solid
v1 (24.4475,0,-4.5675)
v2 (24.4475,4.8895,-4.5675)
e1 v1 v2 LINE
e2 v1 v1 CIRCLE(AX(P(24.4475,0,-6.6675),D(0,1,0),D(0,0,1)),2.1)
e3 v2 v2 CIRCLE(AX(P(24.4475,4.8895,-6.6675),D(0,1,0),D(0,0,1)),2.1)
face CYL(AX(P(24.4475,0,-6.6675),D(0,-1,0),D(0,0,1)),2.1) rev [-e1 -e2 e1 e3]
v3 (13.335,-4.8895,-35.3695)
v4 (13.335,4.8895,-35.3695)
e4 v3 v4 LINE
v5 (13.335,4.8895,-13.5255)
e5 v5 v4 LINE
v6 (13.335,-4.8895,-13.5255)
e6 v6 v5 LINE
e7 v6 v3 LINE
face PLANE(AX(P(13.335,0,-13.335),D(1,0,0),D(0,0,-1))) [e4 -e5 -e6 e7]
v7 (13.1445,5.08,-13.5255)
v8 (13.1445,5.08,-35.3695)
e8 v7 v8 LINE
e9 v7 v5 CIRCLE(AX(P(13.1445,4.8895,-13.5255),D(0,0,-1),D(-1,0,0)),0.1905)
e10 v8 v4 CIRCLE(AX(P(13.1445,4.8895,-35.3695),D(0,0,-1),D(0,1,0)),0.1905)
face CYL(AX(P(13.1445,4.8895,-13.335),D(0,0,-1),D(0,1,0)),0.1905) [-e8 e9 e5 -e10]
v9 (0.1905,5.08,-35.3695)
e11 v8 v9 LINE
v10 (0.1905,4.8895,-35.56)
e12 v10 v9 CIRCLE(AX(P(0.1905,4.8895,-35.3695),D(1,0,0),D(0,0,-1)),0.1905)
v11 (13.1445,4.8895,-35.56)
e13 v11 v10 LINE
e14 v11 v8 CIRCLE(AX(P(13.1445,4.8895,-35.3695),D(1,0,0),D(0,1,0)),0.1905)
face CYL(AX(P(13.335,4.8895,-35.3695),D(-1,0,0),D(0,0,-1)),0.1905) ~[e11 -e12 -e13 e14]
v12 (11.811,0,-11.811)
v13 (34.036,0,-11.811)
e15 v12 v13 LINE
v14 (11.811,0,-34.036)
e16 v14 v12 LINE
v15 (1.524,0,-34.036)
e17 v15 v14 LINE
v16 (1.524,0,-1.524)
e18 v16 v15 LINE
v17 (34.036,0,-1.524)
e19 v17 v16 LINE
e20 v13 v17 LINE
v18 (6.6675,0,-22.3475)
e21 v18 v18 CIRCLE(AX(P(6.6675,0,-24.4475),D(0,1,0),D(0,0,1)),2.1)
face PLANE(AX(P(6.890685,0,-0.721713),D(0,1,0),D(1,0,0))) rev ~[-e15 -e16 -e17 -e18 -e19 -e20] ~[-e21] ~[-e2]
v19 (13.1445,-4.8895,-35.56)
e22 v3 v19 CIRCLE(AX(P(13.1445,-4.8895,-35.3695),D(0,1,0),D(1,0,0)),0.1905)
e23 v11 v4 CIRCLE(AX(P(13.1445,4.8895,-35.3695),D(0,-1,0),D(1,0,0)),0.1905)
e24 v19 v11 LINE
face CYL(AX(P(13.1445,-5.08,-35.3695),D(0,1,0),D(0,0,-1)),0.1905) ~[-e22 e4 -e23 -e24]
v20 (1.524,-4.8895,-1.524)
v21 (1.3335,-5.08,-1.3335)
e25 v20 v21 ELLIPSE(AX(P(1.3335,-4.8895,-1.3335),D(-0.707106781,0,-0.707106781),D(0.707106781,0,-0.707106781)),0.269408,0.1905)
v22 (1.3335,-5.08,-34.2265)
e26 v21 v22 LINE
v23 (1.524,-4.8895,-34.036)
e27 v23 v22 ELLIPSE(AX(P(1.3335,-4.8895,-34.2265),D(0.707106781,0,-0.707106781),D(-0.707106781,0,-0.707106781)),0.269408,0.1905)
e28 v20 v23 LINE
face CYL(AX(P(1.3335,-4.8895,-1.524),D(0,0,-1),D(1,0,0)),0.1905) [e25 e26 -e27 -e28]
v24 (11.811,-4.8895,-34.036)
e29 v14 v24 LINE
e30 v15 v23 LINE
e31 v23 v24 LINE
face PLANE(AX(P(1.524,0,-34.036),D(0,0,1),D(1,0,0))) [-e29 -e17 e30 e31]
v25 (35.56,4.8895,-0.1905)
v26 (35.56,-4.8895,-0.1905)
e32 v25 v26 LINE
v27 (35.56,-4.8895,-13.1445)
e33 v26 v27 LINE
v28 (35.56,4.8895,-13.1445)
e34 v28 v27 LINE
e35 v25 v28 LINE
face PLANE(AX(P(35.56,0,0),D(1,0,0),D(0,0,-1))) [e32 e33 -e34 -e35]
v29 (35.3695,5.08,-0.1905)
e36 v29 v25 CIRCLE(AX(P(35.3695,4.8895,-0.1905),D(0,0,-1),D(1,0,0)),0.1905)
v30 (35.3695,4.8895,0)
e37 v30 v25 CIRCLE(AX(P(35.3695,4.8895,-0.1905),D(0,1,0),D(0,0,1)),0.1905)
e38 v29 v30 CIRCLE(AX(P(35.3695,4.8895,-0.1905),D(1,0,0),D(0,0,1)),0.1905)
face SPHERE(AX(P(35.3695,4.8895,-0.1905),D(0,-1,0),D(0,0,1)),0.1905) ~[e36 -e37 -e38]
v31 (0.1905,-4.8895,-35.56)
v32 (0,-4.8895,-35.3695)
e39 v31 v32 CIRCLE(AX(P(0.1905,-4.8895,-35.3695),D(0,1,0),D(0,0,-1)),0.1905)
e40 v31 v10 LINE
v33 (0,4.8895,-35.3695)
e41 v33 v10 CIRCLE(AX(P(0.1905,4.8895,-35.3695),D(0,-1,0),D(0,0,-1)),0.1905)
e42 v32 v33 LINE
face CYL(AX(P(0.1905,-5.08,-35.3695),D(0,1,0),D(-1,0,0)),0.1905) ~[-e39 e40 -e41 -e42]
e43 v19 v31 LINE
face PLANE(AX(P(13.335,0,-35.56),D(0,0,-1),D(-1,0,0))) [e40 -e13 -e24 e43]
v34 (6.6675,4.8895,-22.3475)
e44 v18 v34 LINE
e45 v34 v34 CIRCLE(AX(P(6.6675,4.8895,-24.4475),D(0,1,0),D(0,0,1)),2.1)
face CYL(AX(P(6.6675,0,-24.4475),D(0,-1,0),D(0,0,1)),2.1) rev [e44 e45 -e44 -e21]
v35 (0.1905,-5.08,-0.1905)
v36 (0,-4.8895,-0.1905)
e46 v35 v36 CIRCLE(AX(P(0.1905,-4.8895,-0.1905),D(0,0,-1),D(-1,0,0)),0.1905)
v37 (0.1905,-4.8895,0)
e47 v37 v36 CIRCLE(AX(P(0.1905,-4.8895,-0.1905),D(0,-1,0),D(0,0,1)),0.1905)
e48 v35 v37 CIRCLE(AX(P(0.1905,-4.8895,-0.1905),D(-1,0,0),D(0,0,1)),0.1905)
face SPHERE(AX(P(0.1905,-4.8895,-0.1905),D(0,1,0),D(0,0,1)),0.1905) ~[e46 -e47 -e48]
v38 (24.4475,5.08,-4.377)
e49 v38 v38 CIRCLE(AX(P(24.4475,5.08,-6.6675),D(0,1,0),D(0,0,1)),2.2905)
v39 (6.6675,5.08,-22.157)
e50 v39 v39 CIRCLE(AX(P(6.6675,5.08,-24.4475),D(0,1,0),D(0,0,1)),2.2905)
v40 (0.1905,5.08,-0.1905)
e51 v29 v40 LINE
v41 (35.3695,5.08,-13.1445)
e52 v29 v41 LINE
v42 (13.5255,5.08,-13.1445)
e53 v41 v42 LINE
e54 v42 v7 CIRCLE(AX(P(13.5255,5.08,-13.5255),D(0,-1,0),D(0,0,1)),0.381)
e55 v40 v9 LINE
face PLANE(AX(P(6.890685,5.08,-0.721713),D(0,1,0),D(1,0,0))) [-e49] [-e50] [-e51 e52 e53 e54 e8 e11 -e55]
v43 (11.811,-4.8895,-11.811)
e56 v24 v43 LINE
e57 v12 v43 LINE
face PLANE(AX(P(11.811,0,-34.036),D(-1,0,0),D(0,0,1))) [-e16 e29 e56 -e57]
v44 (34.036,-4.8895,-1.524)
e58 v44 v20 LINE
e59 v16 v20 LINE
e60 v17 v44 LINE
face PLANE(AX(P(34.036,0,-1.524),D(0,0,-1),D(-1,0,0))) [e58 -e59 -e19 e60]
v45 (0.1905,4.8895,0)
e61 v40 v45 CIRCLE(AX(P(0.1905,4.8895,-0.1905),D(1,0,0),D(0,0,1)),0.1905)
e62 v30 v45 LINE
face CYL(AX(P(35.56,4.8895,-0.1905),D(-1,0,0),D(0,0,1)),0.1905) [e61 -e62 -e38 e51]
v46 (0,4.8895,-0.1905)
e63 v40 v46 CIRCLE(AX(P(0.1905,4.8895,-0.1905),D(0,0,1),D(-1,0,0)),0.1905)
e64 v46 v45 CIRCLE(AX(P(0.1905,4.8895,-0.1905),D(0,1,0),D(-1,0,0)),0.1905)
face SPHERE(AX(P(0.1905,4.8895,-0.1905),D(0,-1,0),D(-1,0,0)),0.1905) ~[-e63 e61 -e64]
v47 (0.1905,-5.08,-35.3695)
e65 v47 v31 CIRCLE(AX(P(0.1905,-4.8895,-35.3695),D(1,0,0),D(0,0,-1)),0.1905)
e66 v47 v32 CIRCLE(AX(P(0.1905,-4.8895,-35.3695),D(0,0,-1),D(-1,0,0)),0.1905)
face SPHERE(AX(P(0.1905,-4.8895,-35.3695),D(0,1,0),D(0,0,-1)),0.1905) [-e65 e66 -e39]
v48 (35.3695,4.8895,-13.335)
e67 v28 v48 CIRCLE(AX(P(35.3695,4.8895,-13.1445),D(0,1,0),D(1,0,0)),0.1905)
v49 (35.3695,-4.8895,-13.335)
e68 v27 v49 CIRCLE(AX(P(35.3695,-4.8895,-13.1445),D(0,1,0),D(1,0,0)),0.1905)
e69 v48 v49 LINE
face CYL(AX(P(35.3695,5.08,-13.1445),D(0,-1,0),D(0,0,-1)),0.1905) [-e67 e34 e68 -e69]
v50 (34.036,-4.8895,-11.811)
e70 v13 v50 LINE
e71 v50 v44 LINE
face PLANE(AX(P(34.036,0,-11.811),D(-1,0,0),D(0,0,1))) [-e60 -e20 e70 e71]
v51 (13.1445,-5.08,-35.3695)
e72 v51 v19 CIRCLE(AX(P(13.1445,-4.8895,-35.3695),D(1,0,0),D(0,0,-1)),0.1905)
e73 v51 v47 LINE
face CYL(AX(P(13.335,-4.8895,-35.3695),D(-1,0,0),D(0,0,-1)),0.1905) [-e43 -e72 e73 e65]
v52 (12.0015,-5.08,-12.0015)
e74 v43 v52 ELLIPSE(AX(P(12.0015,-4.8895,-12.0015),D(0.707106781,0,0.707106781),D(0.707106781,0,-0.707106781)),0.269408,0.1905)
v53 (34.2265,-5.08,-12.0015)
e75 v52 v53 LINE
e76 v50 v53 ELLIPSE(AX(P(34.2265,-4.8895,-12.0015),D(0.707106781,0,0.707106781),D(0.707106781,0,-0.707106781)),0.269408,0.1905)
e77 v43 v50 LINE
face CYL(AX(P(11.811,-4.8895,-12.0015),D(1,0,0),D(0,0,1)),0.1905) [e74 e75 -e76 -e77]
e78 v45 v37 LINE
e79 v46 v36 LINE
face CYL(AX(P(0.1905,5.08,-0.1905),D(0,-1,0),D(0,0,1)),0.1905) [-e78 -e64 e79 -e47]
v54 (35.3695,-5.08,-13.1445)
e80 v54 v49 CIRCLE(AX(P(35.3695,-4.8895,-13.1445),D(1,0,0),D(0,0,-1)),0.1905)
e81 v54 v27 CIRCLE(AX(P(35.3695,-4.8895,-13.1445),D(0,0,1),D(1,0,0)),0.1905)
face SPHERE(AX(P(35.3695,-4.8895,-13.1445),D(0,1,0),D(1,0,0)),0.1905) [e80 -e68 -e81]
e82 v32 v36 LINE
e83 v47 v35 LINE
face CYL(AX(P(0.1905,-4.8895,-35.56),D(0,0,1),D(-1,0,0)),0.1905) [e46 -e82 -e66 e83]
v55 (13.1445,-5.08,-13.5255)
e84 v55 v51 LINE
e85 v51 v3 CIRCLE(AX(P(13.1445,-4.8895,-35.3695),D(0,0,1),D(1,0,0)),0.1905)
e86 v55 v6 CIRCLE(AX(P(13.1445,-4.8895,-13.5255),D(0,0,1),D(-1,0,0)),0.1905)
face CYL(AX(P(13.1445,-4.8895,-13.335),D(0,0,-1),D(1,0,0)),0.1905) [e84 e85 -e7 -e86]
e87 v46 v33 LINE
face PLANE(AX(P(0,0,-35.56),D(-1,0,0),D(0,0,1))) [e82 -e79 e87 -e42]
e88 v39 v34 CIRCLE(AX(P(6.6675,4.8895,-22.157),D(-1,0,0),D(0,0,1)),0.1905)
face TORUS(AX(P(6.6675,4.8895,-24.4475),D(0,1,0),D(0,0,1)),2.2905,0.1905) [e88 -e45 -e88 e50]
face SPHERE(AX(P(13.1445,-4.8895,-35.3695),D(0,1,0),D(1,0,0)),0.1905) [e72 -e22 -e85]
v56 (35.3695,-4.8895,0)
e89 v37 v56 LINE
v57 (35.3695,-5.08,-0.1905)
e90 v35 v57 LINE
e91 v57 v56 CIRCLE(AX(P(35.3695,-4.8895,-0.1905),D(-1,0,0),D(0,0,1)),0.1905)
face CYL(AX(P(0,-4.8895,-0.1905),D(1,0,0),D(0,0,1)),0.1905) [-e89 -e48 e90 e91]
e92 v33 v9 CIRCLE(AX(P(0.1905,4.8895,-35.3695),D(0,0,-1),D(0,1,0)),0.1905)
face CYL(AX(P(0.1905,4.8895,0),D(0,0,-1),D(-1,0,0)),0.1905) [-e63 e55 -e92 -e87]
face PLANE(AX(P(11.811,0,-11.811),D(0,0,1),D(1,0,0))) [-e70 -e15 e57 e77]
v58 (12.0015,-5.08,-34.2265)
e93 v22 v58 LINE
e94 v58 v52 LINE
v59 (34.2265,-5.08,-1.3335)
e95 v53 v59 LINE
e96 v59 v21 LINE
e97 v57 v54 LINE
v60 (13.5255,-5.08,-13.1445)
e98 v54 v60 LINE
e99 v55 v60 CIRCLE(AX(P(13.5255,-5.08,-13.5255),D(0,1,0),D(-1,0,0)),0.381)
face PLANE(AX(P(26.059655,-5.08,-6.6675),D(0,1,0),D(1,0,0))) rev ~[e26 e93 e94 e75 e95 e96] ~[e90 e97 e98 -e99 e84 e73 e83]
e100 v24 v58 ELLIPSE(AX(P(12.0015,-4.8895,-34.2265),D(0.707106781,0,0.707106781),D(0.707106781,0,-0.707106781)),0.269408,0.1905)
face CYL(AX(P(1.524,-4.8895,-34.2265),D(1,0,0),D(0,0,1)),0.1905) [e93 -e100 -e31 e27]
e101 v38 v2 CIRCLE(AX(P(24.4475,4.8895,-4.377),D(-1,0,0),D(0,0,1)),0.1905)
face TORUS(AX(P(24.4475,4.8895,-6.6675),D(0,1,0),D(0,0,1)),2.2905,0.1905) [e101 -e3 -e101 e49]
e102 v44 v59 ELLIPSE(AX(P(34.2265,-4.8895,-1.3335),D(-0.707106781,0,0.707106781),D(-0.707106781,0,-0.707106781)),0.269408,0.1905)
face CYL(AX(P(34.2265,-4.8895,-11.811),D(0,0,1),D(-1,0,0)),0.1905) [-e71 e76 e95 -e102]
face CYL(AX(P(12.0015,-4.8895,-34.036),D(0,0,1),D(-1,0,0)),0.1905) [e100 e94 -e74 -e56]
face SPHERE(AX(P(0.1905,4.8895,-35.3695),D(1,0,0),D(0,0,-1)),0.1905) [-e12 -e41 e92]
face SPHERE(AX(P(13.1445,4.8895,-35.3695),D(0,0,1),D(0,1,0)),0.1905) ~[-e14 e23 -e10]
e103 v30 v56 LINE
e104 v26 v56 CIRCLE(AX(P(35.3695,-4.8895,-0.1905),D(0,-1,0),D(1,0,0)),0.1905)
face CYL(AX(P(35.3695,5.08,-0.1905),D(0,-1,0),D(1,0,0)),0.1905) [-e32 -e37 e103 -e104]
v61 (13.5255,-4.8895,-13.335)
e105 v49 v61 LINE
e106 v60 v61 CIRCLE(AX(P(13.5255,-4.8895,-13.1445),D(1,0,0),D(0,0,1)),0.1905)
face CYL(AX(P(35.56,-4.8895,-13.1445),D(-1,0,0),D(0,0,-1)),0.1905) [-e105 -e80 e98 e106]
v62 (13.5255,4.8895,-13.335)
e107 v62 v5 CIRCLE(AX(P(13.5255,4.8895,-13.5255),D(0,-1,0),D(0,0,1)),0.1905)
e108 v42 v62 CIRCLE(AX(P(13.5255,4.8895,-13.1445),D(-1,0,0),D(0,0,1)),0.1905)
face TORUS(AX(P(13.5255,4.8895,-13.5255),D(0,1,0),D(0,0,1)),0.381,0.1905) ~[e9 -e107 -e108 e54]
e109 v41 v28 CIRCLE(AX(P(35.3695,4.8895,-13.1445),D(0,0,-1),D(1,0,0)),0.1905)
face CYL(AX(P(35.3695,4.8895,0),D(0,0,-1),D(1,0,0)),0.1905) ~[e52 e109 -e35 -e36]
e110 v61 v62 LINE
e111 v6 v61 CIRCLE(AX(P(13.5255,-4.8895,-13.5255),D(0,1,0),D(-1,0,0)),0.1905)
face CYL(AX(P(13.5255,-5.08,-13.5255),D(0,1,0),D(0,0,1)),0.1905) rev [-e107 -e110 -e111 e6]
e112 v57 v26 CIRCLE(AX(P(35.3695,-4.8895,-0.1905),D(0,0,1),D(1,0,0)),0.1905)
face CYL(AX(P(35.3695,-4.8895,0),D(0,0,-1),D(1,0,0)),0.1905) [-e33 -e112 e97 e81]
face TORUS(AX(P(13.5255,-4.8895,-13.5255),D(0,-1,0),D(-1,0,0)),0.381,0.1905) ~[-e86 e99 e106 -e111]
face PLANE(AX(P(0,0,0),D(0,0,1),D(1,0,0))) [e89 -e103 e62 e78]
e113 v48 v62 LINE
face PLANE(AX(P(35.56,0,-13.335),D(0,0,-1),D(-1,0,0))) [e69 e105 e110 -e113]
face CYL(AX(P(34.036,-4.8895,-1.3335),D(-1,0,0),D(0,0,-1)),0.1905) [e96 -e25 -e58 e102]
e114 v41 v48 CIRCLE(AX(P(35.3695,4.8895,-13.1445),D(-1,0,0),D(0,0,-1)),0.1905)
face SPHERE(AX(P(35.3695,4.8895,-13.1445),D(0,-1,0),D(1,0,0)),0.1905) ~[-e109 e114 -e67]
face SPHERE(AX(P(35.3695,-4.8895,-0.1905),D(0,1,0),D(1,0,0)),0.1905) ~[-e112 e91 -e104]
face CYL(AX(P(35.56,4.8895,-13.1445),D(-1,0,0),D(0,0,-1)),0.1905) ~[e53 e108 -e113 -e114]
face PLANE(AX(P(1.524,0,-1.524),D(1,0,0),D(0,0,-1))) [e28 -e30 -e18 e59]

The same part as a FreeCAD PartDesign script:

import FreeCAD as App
import Part
import Sketcher
from FreeCAD import Vector
Q = App.Units.Quantity


def edges_at(feature, points):
    """Names of the edges that pass closest to the given points."""
    edges = feature.Shape.Edges
    near = lambda p: min(range(len(edges)), key=lambda i: edges[i].distToShape(Part.Vertex(*p))[0])
    return sorted({f"Edge{near(p) + 1}" for p in points})

doc = App.newDocument("Part")
params = doc.addObject("Spreadsheet::Sheet", "Params")
for row, (alias, value) in enumerate([
    ("sketch1_width", "1.4 in"),
    ("sketch1_width2", "0.875 in"),
    ("pad1_length", "0.2 in"),
    ("sketch2_width", "1.4 in"),
    ("sketch2_width2", "1.28 in"),
    ("sketch2_width3", "0.875 in"),
    ("pad2_length", "0.2 in"),
    ("fillet_radius", "0.0075 in"),
], start=1):
    params.set(f"A{row}", alias)
    params.set(f"B{row}", "=" + value)
    params.setAlias(f"B{row}", alias)

body = doc.addObject("PartDesign::Body", "Body")

sketch1 = body.newObject("Sketcher::SketchObject", "Sketch")
sketch1.AttachmentSupport = (doc.getObject("XZ_Plane"), [""])
sketch1.MapMode = "FlatFace"
sketch1.addGeometry(Part.LineSegment(Vector(35.56, 0, 0), Vector(35.56, -13.335, 0)), False)
sketch1.addGeometry(Part.LineSegment(Vector(35.56, -13.335, 0), Vector(13.335, -13.335, 0)), False)
sketch1.addGeometry(Part.LineSegment(Vector(13.335, -13.335, 0), Vector(13.335, -35.56, 0)), False)
sketch1.addGeometry(Part.LineSegment(Vector(13.335, -35.56, 0), Vector(0, -35.56, 0)), False)
sketch1.addGeometry(Part.LineSegment(Vector(0, -35.56, 0), Vector(0, 0, 0)), False)
sketch1.addGeometry(Part.LineSegment(Vector(0, 0, 0), Vector(35.56, 0, 0)), False)
sketch1.addGeometry(Part.Circle(Vector(24.4475, -6.6675, 0), Vector(0, 0, 1), 2.1), False)
sketch1.addGeometry(Part.Circle(Vector(6.6675, -24.4475, 0), Vector(0, 0, 1), 2.1), False)
sketch1.addConstraint(Sketcher.Constraint("Coincident", 0, 2, 1, 1))
sketch1.addConstraint(Sketcher.Constraint("Coincident", 1, 2, 2, 1))
sketch1.addConstraint(Sketcher.Constraint("Coincident", 2, 2, 3, 1))
sketch1.addConstraint(Sketcher.Constraint("Coincident", 3, 2, 4, 1))
sketch1.addConstraint(Sketcher.Constraint("Coincident", 4, 2, 5, 1))
sketch1.addConstraint(Sketcher.Constraint("Coincident", 5, 2, 0, 1))
sketch1.addConstraint(Sketcher.Constraint("Vertical", 0))
sketch1.addConstraint(Sketcher.Constraint("Horizontal", 1))
sketch1.addConstraint(Sketcher.Constraint("Vertical", 2))
sketch1.addConstraint(Sketcher.Constraint("Horizontal", 3))
sketch1.addConstraint(Sketcher.Constraint("Vertical", 4))
sketch1.addConstraint(Sketcher.Constraint("Horizontal", 5))
sketch1.addConstraint(Sketcher.Constraint("Coincident", 4, 2, -1, 1))
sketch1.addConstraint(Sketcher.Constraint("Equal", 6, 7))
sketch1.addConstraint(Sketcher.Constraint("Equal", 3, 0))
sketch1.addConstraint(Sketcher.Constraint("Equal", 1, 2))
sketch1.addConstraint(Sketcher.Constraint("DistanceX", 5, 1, 5, 2, Q("1.4 in")))
sketch1.addConstraint(Sketcher.Constraint("DistanceX", 7, 3, 6, 3, Q("0.7 in")))
sketch1.addConstraint(Sketcher.Constraint("DistanceY", 7, 3, 6, 3, Q("0.7 in")))
sketch1.addConstraint(Sketcher.Constraint("Diameter", 6, Q("4.2 mm")))
sketch1.addConstraint(Sketcher.Constraint("DistanceX", 1, 2, 1, 1, Q("0.875 in")))
sketch1.addConstraint(Sketcher.Constraint("DistanceX", 6, 3, 0, 2, Q("0.4375 in")))
sketch1.addConstraint(Sketcher.Constraint("DistanceY", 7, 3, 0, 2, Q("0.4375 in")))
sketch1.setExpression("Constraints[16]", "Params.sketch1_width")
sketch1.setExpression("Constraints[20]", "Params.sketch1_width2")
pad1 = body.newObject("PartDesign::Pad", "Pad")
pad1.Profile = sketch1
pad1.setExpression("Length", "Params.pad1_length")
pad1.Reversed = True

sketch2 = body.newObject("Sketcher::SketchObject", "Sketch001")
sketch2.AttachmentSupport = (doc.getObject("XZ_Plane"), [""])
sketch2.MapMode = "FlatFace"
sketch2.addGeometry(Part.LineSegment(Vector(35.56, -13.335, 0), Vector(13.335, -13.335, 0)), False)
sketch2.addGeometry(Part.LineSegment(Vector(13.335, -13.335, 0), Vector(13.335, -35.56, 0)), False)
sketch2.addGeometry(Part.LineSegment(Vector(13.335, -35.56, 0), Vector(0, -35.56, 0)), False)
sketch2.addGeometry(Part.LineSegment(Vector(0, -35.56, 0), Vector(0, 0, 0)), False)
sketch2.addGeometry(Part.LineSegment(Vector(0, 0, 0), Vector(35.56, 0, 0)), False)
sketch2.addGeometry(Part.LineSegment(Vector(35.56, 0, 0), Vector(35.56, -13.335, 0)), False)
sketch2.addGeometry(Part.LineSegment(Vector(11.811, -34.036, 0), Vector(11.811, -11.811, 0)), False)
sketch2.addGeometry(Part.LineSegment(Vector(11.811, -11.811, 0), Vector(34.036, -11.811, 0)), False)
sketch2.addGeometry(Part.LineSegment(Vector(34.036, -11.811, 0), Vector(34.036, -1.524, 0)), False)
sketch2.addGeometry(Part.LineSegment(Vector(34.036, -1.524, 0), Vector(1.524, -1.524, 0)), False)
sketch2.addGeometry(Part.LineSegment(Vector(1.524, -1.524, 0), Vector(1.524, -34.036, 0)), False)
sketch2.addGeometry(Part.LineSegment(Vector(1.524, -34.036, 0), Vector(11.811, -34.036, 0)), False)
sketch2.addConstraint(Sketcher.Constraint("Coincident", 0, 2, 1, 1))
sketch2.addConstraint(Sketcher.Constraint("Coincident", 1, 2, 2, 1))
sketch2.addConstraint(Sketcher.Constraint("Coincident", 2, 2, 3, 1))
sketch2.addConstraint(Sketcher.Constraint("Coincident", 3, 2, 4, 1))
sketch2.addConstraint(Sketcher.Constraint("Coincident", 4, 2, 5, 1))
sketch2.addConstraint(Sketcher.Constraint("Coincident", 5, 2, 0, 1))
sketch2.addConstraint(Sketcher.Constraint("Coincident", 6, 2, 7, 1))
sketch2.addConstraint(Sketcher.Constraint("Coincident", 7, 2, 8, 1))
sketch2.addConstraint(Sketcher.Constraint("Coincident", 8, 2, 9, 1))
sketch2.addConstraint(Sketcher.Constraint("Coincident", 9, 2, 10, 1))
sketch2.addConstraint(Sketcher.Constraint("Coincident", 10, 2, 11, 1))
sketch2.addConstraint(Sketcher.Constraint("Coincident", 11, 2, 6, 1))
sketch2.addConstraint(Sketcher.Constraint("Horizontal", 0))
sketch2.addConstraint(Sketcher.Constraint("Vertical", 1))
sketch2.addConstraint(Sketcher.Constraint("Horizontal", 2))
sketch2.addConstraint(Sketcher.Constraint("Vertical", 3))
sketch2.addConstraint(Sketcher.Constraint("Horizontal", 4))
sketch2.addConstraint(Sketcher.Constraint("Vertical", 5))
sketch2.addConstraint(Sketcher.Constraint("Vertical", 6))
sketch2.addConstraint(Sketcher.Constraint("Horizontal", 7))
sketch2.addConstraint(Sketcher.Constraint("Vertical", 8))
sketch2.addConstraint(Sketcher.Constraint("Horizontal", 9))
sketch2.addConstraint(Sketcher.Constraint("Vertical", 10))
sketch2.addConstraint(Sketcher.Constraint("Horizontal", 11))
sketch2.addConstraint(Sketcher.Constraint("Coincident", 3, 2, -1, 1))
sketch2.addConstraint(Sketcher.Constraint("Equal", 0, 7))
sketch2.addConstraint(Sketcher.Constraint("Equal", 7, 1))
sketch2.addConstraint(Sketcher.Constraint("Equal", 4, 3))
sketch2.addConstraint(Sketcher.Constraint("Equal", 1, 6))
sketch2.addConstraint(Sketcher.Constraint("Equal", 11, 8))
sketch2.addConstraint(Sketcher.Constraint("DistanceX", 4, 1, 4, 2, Q("1.4 in")))
sketch2.addConstraint(Sketcher.Constraint("DistanceX", 9, 2, 9, 1, Q("1.28 in")))
sketch2.addConstraint(Sketcher.Constraint("DistanceX", 0, 2, 0, 1, Q("0.875 in")))
sketch2.addConstraint(Sketcher.Constraint("DistanceX", -1, 1, 7, 2, Q("1.34 in")))
sketch2.addConstraint(Sketcher.Constraint("DistanceY", 8, 2, -1, 1, Q("0.06 in")))
sketch2.setExpression("Constraints[30]", "Params.sketch2_width")
sketch2.setExpression("Constraints[31]", "Params.sketch2_width2")
sketch2.setExpression("Constraints[32]", "Params.sketch2_width3")
pad2 = body.newObject("PartDesign::Pad", "Pad001")
pad2.Profile = sketch2
pad2.setExpression("Length", "Params.pad2_length")
doc.recompute()

fillet = body.newObject("PartDesign::Fillet", "Fillet")
fillet.Base = (pad2, edges_at(pad2, [
    (13.335, 5.08, -24.448),
    (35.56, 0, -13.335),
    (6.668, 5.08, -35.56),
    (35.56, 0, 0),
    (0, 0, 0),
    (0, 0, -35.56),
    (13.335, 0, -35.56),
    (13.335, 0, -13.335),
    (0, 5.08, -17.78),
    (17.78, 5.08, 0),
    (13.335, -5.08, -24.448),
    (35.56, -5.08, -6.668),
    (17.78, -5.08, 0),
    (1.524, -5.08, -17.78),
    (35.56, 5.08, -6.668),
    (22.924, -5.08, -11.811),
    (6.668, -5.08, -34.036),
    (17.78, -5.08, -1.524),
    (34.036, -5.08, -6.668),
    (11.811, -5.08, -22.924),
    (6.668, -5.08, -35.56),
    (24.448, -5.08, -13.335),
    (0, -5.08, -17.78),
    (24.448, 5.08, -8.768),
    (6.668, 5.08, -26.547),
    (24.448, 5.08, -13.335),
]))
fillet.setExpression("Radius", "Params.fillet_radius")

doc.recompute()
